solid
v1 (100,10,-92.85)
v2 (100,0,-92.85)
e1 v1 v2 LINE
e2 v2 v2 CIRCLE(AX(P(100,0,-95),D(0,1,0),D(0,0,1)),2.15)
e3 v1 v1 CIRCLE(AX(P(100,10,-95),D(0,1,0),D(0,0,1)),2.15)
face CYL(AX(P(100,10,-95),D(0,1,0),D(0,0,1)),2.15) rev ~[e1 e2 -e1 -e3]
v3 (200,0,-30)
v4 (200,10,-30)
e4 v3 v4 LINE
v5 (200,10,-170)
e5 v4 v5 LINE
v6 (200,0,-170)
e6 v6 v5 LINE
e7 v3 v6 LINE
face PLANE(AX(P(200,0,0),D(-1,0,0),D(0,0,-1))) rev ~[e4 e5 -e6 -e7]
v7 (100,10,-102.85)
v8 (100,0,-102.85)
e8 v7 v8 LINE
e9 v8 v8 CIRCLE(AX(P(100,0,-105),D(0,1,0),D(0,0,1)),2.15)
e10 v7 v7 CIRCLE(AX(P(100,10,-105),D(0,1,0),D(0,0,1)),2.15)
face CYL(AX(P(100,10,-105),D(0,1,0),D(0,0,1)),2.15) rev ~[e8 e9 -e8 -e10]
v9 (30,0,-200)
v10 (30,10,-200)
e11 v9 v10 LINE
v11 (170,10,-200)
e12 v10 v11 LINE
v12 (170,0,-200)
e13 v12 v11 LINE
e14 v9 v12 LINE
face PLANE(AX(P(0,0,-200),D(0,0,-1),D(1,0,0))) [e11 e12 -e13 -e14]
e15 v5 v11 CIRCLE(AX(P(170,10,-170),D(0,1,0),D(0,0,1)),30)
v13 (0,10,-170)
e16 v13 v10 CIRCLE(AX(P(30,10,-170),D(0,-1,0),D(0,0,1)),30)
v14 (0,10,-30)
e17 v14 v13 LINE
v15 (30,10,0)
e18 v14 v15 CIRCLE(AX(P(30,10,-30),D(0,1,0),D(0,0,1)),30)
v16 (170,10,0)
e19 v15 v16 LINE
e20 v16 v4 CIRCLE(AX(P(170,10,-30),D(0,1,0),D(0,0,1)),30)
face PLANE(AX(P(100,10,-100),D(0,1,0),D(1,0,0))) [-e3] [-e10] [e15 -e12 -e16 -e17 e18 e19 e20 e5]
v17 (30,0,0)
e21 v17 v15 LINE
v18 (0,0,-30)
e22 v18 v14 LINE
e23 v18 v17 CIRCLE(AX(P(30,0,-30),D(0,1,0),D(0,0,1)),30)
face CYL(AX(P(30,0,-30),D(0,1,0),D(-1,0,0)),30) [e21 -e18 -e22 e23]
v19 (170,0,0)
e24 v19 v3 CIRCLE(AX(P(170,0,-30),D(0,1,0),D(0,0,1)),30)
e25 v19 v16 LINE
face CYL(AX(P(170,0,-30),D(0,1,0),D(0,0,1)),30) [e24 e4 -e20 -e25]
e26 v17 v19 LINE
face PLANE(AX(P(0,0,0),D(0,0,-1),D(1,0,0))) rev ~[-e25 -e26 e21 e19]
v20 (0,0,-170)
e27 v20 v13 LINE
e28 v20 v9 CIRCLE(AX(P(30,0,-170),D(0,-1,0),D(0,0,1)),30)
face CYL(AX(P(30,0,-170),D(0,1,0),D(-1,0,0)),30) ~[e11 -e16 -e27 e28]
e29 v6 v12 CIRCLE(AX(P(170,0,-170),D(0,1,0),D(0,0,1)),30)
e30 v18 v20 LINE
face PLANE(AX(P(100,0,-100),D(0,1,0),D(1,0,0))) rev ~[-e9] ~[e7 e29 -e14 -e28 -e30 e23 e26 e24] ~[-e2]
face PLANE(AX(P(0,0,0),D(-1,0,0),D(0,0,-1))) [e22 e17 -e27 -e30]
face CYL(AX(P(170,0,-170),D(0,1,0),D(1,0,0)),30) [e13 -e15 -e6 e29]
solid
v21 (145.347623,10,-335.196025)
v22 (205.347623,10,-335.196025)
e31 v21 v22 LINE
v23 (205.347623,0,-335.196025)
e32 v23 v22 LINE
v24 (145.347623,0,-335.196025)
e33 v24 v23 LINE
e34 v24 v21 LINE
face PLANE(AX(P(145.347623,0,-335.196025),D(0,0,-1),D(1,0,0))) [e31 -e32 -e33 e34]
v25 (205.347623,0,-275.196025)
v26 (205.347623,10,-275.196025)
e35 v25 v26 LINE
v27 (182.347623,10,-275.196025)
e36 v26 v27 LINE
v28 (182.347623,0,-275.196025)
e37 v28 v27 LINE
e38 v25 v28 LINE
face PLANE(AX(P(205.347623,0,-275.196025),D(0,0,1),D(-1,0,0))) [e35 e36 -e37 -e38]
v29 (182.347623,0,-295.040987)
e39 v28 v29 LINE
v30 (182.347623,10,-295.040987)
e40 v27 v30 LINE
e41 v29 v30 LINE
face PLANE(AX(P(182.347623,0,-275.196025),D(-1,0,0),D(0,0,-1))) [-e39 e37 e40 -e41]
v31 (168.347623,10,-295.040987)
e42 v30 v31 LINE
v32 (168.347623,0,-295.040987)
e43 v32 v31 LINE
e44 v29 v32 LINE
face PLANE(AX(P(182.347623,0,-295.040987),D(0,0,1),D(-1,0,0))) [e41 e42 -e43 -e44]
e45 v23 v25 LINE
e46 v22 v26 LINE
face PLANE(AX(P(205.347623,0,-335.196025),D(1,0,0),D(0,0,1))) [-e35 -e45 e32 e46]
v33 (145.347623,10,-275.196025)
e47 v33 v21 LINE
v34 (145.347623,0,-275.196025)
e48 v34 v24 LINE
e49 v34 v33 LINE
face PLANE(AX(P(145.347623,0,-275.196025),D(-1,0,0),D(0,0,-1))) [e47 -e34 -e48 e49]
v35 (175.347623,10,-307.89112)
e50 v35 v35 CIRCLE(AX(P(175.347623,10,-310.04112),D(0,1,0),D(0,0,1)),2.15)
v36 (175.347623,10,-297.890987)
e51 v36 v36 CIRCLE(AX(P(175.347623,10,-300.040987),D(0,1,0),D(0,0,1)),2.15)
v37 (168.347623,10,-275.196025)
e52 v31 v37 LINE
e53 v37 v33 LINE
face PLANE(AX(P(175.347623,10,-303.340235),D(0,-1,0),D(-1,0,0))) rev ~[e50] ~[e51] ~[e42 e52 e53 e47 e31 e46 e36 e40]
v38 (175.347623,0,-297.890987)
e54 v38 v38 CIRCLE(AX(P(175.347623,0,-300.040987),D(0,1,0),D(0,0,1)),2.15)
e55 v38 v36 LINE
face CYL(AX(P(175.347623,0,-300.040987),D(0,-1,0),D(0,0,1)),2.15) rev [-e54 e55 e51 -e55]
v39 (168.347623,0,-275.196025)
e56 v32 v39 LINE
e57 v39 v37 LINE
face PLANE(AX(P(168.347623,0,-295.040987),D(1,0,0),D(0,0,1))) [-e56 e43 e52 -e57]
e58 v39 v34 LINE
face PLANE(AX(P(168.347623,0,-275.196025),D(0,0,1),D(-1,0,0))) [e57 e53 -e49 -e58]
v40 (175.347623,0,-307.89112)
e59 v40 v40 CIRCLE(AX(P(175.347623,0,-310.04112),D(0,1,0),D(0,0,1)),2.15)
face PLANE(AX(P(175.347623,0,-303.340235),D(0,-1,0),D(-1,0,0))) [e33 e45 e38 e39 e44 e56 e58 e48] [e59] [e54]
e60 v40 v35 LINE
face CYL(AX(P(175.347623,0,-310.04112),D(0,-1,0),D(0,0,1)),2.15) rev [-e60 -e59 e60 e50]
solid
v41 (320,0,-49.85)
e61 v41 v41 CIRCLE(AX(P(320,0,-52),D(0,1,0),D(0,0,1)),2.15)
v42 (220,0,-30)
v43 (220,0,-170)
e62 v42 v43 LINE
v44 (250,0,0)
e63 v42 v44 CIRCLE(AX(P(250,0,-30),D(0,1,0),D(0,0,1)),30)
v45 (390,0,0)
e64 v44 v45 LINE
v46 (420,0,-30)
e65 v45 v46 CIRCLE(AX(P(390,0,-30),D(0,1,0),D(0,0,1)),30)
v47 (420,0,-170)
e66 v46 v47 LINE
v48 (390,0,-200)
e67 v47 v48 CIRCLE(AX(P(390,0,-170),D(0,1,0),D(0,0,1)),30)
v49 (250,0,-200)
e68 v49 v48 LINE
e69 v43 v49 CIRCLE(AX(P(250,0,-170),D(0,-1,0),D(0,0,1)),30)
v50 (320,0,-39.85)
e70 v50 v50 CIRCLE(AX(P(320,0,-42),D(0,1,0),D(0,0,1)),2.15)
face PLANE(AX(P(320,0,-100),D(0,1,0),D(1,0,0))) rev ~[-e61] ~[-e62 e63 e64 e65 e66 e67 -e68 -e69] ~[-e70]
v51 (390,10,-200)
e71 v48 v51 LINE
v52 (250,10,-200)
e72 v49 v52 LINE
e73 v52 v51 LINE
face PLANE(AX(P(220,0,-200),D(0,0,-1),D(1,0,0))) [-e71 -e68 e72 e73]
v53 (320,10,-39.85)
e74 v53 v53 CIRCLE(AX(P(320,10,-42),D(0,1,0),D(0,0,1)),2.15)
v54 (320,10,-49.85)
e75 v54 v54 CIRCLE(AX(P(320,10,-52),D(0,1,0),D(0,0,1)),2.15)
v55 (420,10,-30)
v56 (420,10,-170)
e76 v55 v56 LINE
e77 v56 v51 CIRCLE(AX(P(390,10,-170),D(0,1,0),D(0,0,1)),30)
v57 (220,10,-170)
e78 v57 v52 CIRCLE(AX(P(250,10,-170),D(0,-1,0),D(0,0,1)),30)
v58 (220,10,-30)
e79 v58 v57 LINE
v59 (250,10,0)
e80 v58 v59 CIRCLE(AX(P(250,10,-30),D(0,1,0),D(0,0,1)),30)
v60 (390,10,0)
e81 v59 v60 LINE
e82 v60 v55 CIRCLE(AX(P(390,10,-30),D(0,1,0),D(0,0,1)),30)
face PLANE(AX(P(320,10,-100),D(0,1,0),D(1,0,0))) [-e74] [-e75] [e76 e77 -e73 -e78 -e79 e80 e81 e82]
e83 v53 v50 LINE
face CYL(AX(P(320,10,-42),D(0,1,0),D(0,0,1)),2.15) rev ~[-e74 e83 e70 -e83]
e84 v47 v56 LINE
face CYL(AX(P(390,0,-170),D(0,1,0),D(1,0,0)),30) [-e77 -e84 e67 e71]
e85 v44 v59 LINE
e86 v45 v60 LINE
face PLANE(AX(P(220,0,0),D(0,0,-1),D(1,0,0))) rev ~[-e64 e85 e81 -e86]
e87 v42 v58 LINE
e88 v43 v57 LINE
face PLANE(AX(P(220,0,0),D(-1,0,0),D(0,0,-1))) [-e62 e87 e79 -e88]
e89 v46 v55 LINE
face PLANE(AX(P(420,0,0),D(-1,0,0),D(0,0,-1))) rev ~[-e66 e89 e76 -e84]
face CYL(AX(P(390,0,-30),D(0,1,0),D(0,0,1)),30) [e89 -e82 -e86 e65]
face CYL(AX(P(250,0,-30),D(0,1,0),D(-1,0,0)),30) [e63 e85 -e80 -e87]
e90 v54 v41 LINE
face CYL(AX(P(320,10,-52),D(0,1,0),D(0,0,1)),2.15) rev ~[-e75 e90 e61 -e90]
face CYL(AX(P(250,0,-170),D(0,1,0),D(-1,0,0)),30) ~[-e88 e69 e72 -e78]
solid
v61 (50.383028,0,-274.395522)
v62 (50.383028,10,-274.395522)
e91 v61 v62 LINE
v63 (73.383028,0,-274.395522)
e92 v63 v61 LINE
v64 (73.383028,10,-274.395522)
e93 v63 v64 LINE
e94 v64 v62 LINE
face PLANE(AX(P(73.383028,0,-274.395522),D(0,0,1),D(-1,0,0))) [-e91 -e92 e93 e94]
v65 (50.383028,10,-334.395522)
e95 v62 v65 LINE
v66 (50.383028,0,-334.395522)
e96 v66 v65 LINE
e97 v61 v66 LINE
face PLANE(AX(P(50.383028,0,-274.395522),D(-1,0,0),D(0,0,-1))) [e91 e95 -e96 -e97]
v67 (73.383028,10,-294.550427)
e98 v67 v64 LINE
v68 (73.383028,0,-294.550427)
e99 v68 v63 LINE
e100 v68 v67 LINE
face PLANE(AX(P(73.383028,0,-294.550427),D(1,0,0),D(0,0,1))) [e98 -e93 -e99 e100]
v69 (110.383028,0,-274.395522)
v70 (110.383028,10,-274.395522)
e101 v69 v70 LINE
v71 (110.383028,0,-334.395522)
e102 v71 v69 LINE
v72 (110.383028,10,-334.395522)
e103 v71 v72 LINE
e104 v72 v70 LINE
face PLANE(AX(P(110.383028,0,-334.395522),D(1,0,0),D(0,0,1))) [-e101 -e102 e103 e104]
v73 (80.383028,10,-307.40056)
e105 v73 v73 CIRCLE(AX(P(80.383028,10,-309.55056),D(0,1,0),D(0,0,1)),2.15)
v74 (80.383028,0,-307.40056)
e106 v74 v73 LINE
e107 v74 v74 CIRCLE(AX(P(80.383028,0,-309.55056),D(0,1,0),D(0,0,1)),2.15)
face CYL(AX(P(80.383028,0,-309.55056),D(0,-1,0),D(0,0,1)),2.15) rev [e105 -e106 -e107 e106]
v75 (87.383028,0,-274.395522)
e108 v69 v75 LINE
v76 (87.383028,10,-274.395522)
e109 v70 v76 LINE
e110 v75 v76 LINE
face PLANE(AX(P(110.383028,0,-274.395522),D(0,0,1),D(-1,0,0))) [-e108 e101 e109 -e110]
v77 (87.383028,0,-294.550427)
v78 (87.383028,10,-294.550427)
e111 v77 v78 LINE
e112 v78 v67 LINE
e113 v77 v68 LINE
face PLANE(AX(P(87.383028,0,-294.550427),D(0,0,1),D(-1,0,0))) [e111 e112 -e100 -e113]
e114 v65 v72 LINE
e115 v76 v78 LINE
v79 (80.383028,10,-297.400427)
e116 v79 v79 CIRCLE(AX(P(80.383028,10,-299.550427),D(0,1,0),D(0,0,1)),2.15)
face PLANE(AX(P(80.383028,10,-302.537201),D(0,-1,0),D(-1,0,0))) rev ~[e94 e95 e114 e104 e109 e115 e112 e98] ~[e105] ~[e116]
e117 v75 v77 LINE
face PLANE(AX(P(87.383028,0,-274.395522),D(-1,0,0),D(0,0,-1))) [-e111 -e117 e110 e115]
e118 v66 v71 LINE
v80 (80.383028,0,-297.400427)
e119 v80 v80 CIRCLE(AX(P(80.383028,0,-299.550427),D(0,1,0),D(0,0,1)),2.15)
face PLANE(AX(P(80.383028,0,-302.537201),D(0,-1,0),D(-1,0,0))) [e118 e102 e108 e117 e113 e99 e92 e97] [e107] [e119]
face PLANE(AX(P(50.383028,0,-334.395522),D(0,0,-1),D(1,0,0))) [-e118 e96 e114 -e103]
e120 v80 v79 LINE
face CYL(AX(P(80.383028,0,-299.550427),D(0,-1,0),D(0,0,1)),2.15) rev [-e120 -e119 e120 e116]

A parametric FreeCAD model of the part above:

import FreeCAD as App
import Part
import Sketcher
Q = App.Units.Quantity


def edges_at(feature, points):
    """Names of the edges that pass closest to the given points."""
    edges = feature.Shape.Edges
    near = lambda p: min(range(len(edges)), key=lambda i: edges[i].distToShape(Part.Vertex(*p))[0])
    return sorted({f"Edge{near(p) + 1}" for p in points})

doc = App.newDocument("Part")
body = doc.addObject("PartDesign::Body", "Body")

# Sketch on XZ plane
sketch1 = body.newObject("Sketcher::SketchObject", "Sketch")
sketch1.AttachmentSupport = (doc.getObject("XZ_Plane"), [""])
sketch1.MapMode = "FlatFace"
sketch1.addGeometry([
    Part.LineSegment(App.Vector(0, -200, 0), App.Vector(0, 0, 0)),
    Part.LineSegment(App.Vector(0, 0, 0), App.Vector(200, 0, 0)),
    Part.LineSegment(App.Vector(200, 0, 0), App.Vector(200, -200, 0)),
    Part.LineSegment(App.Vector(200, -200, 0), App.Vector(0, -200, 0)),
], False)
sketch1.addConstraint([
    Sketcher.Constraint("Coincident", 0, 2, 1, 1),
    Sketcher.Constraint("Coincident", 1, 2, 2, 1),
    Sketcher.Constraint("Coincident", 2, 2, 3, 1),
    Sketcher.Constraint("Coincident", 3, 2, 0, 1),
    Sketcher.Constraint("Vertical", 0),
    Sketcher.Constraint("Horizontal", 1),
    Sketcher.Constraint("Vertical", 2),
    Sketcher.Constraint("Horizontal", 3),
    Sketcher.Constraint("Coincident", 0, 2, -1, 1),
    Sketcher.Constraint("Equal", 3, 0),
    Sketcher.Constraint("DistanceX", 1, 1, 1, 2, Q("200 mm")),
])
pad1 = body.newObject("PartDesign::Pad", "Pad")
pad1.Profile = sketch1
pad1.Length = 10
pad1.Reversed = True
doc.recompute()

fillet = body.newObject("PartDesign::Fillet", "Fillet")
fillet.Base = (pad1, edges_at(pad1, [
    (0, 5, -200),
    (200, 5, -200),
    (200, 5, 0),
    (0, 5, 0),
]))
fillet.Radius = 30

# Sketch on XZ plane
sketch2 = body.newObject("Sketcher::SketchObject", "Sketch001")
sketch2.AttachmentSupport = (doc.getObject("XZ_Plane"), [""])
sketch2.MapMode = "FlatFace"
sketch2.AttachmentOffset = App.Placement(App.Vector(0, 0, -10), App.Rotation())
sketch2.addGeometry([
    Part.Circle(App.Vector(100, -105, 0), App.Vector(0, 0, 1), 2.15),
    Part.Circle(App.Vector(100, -95, 0), App.Vector(0, 0, 1), 2.15),
], False)
sketch2.addConstraint([
    Sketcher.Constraint("Equal", 0, 1),
    Sketcher.Constraint("Vertical", 0, 3, 1, 3),
    Sketcher.Constraint("Diameter", 0, Q("4.3 mm")),
    Sketcher.Constraint("DistanceX", -1, 1, 0, 3, Q("100 mm")),
    Sketcher.Constraint("DistanceY", 0, 3, -1, 1, Q("105 mm")),
    Sketcher.Constraint("DistanceY", 1, 3, -1, 1, Q("95 mm")),
])
pocket1 = body.newObject("PartDesign::Pocket", "Pocket")
pocket1.Profile = sketch2
pocket1.Length = 15
pocket1.Reversed = True
body2 = doc.addObject("PartDesign::Body", "Body001")

# Sketch on XZ plane
sketch3 = body2.newObject("Sketcher::SketchObject", "Sketch002")
sketch3.AttachmentSupport = (doc.getObject("XZ_Plane001"), [""])
sketch3.MapMode = "FlatFace"
sketch3.addGeometry([
    Part.LineSegment(App.Vector(220, -200, 0), App.Vector(220, 0, 0)),
    Part.LineSegment(App.Vector(220, 0, 0), App.Vector(420, 0, 0)),
    Part.LineSegment(App.Vector(420, 0, 0), App.Vector(420, -200, 0)),
    Part.LineSegment(App.Vector(420, -200, 0), App.Vector(220, -200, 0)),
], False)
sketch3.addConstraint([
    Sketcher.Constraint("Coincident", 0, 2, 1, 1),
    Sketcher.Constraint("Coincident", 1, 2, 2, 1),
    Sketcher.Constraint("Coincident", 2, 2, 3, 1),
    Sketcher.Constraint("Coincident", 3, 2, 0, 1),
    Sketcher.Constraint("Vertical", 0),
    Sketcher.Constraint("Horizontal", 1),
    Sketcher.Constraint("Vertical", 2),
    Sketcher.Constraint("Horizontal", 3),
    Sketcher.Constraint("PointOnObject", 0, 2, -1),
    Sketcher.Constraint("Equal", 3, 0),
    Sketcher.Constraint("DistanceX", 1, 1, 1, 2, Q("200 mm")),
    Sketcher.Constraint("DistanceX", -1, 1, 0, 2, Q("220 mm")),
])
pad2 = body2.newObject("PartDesign::Pad", "Pad001")
pad2.Profile = sketch3
pad2.Length = 10
pad2.Reversed = True
doc.recompute()

fillet2 = body2.newObject("PartDesign::Fillet", "Fillet001")
fillet2.Base = (pad2, edges_at(pad2, [
    (220, 5, -200),
    (420, 5, -200),
    (420, 5, 0),
    (220, 5, 0),
]))
fillet2.Radius = 30

# Sketch on XZ plane
sketch4 = body2.newObject("Sketcher::SketchObject", "Sketch003")
sketch4.AttachmentSupport = (doc.getObject("XZ_Plane001"), [""])
sketch4.MapMode = "FlatFace"
sketch4.AttachmentOffset = App.Placement(App.Vector(0, 0, -10), App.Rotation())
sketch4.addGeometry([
    Part.Circle(App.Vector(320, -52, 0), App.Vector(0, 0, 1), 2.15),
    Part.Circle(App.Vector(320, -42, 0), App.Vector(0, 0, 1), 2.15),
], False)
sketch4.addConstraint([
    Sketcher.Constraint("Equal", 0, 1),
    Sketcher.Constraint("Vertical", 0, 3, 1, 3),
    Sketcher.Constraint("Diameter", 0, Q("4.3 mm")),
    Sketcher.Constraint("DistanceX", -1, 1, 0, 3, Q("320 mm")),
    Sketcher.Constraint("DistanceY", 0, 3, -1, 1, Q("52 mm")),
    Sketcher.Constraint("DistanceY", 1, 3, -1, 1, Q("42 mm")),
])
pocket2 = body2.newObject("PartDesign::Pocket", "Pocket001")
pocket2.Profile = sketch4
pocket2.Length = 15
pocket2.Reversed = True
body3 = doc.addObject("PartDesign::Body", "Body002")

# Sketch on XZ plane
sketch5 = body3.newObject("Sketcher::SketchObject", "Sketch004")
sketch5.AttachmentSupport = (doc.getObject("XZ_Plane002"), [""])
sketch5.MapMode = "FlatFace"
sketch5.addGeometry([
    Part.LineSegment(App.Vector(110.383028, -334.395522, 0), App.Vector(50.383028, -334.395522, 0)),  # 0
    Part.LineSegment(App.Vector(50.383028, -334.395522, 0), App.Vector(50.383028, -274.395522, 0)),  # 1
    Part.LineSegment(App.Vector(50.383028, -274.395522, 0), App.Vector(73.383028, -274.395522, 0)),  # 2
    Part.LineSegment(App.Vector(73.383028, -274.395522, 0), App.Vector(73.383028, -294.550427, 0)),  # 3
    Part.LineSegment(App.Vector(73.383028, -294.550427, 0), App.Vector(87.383028, -294.550427, 0)),  # 4
    Part.LineSegment(App.Vector(87.383028, -294.550427, 0), App.Vector(87.383028, -274.395522, 0)),  # 5
    Part.LineSegment(App.Vector(87.383028, -274.395522, 0), App.Vector(110.383028, -274.395522, 0)),  # 6
    Part.LineSegment(App.Vector(110.383028, -274.395522, 0), App.Vector(110.383028, -334.395522, 0)),  # 7
    Part.Circle(App.Vector(80.383028, -299.550427, 0), App.Vector(0, 0, 1), 2.15),  # 8
    Part.Circle(App.Vector(80.383028, -309.55056, 0), App.Vector(0, 0, 1), 2.15),  # 9
], False)
sketch5.addConstraint([
    Sketcher.Constraint("Coincident", 0, 2, 1, 1),
    Sketcher.Constraint("Coincident", 1, 2, 2, 1),
    Sketcher.Constraint("Coincident", 2, 2, 3, 1),
    Sketcher.Constraint("Coincident", 3, 2, 4, 1),
    Sketcher.Constraint("Coincident", 4, 2, 5, 1),
    Sketcher.Constraint("Coincident", 5, 2, 6, 1),
    Sketcher.Constraint("Coincident", 6, 2, 7, 1),
    Sketcher.Constraint("Coincident", 7, 2, 0, 1),
    Sketcher.Constraint("Horizontal", 0),
    Sketcher.Constraint("Vertical", 1),
    Sketcher.Constraint("Horizontal", 2),
    Sketcher.Constraint("Vertical", 3),
    Sketcher.Constraint("Horizontal", 4),
    Sketcher.Constraint("Vertical", 5),
    Sketcher.Constraint("Horizontal", 6),
    Sketcher.Constraint("Vertical", 7),
    Sketcher.Constraint("Equal", 8, 9),
    Sketcher.Constraint("Horizontal", 2, 2, 5, 2),
    Sketcher.Constraint("Vertical", 8, 3, 9, 3),
    Sketcher.Constraint("Equal", 2, 6),
    Sketcher.Constraint("Equal", 0, 1),
    Sketcher.Constraint("Diameter", 8, Q("4.3 mm")),
    Sketcher.Constraint("DistanceX", 0, 2, 0, 1, Q("60 mm")),
    Sketcher.Constraint("DistanceX", 2, 1, 2, 2, Q("23 mm")),
    Sketcher.Constraint("DistanceX", 0, 2, 9, 3, Q("30 mm")),
    Sketcher.Constraint("DistanceY", 8, 3, 3, 2, Q("5 mm")),
    Sketcher.Constraint("DistanceY", 3, 2, 3, 1, Q("20.154905 mm")),
    Sketcher.Constraint("DistanceY", 9, 3, -1, 1, Q("309.55056 mm")),
    Sketcher.Constraint("DistanceY", 0, 2, -1, 1, Q("334.395522 mm")),
    Sketcher.Constraint("DistanceX", -1, 1, 8, 3, Q("80.383028 mm")),
])
pad3 = body3.newObject("PartDesign::Pad", "Pad002")
pad3.Profile = sketch5
pad3.Length = 10
pad3.Reversed = True
body4 = doc.addObject("PartDesign::Body", "Body003")

# Sketch on XZ plane
sketch6 = body4.newObject("Sketcher::SketchObject", "Sketch005")
sketch6.AttachmentSupport = (doc.getObject("XZ_Plane003"), [""])
sketch6.MapMode = "FlatFace"
sketch6.addGeometry([
    Part.LineSegment(App.Vector(205.347623, -335.196025, 0), App.Vector(145.347623, -335.196025, 0)),  # 0
    Part.LineSegment(App.Vector(145.347623, -335.196025, 0), App.Vector(145.347623, -275.196025, 0)),  # 1
    Part.LineSegment(App.Vector(145.347623, -275.196025, 0), App.Vector(168.347623, -275.196025, 0)),  # 2
    Part.LineSegment(App.Vector(168.347623, -275.196025, 0), App.Vector(168.347623, -295.040987, 0)),  # 3
    Part.LineSegment(App.Vector(168.347623, -295.040987, 0), App.Vector(182.347623, -295.040987, 0)),  # 4
    Part.LineSegment(App.Vector(182.347623, -295.040987, 0), App.Vector(182.347623, -275.196025, 0)),  # 5
    Part.LineSegment(App.Vector(182.347623, -275.196025, 0), App.Vector(205.347623, -275.196025, 0)),  # 6
    Part.LineSegment(App.Vector(205.347623, -275.196025, 0), App.Vector(205.347623, -335.196025, 0)),  # 7
    Part.Circle(App.Vector(175.347623, -300.040987, 0), App.Vector(0, 0, 1), 2.15),  # 8
    Part.Circle(App.Vector(175.347623, -310.04112, 0), App.Vector(0, 0, 1), 2.15),  # 9
], False)
sketch6.addConstraint([
    Sketcher.Constraint("Coincident", 0, 2, 1, 1),
    Sketcher.Constraint("Coincident", 1, 2, 2, 1),
    Sketcher.Constraint("Coincident", 2, 2, 3, 1),
    Sketcher.Constraint("Coincident", 3, 2, 4, 1),
    Sketcher.Constraint("Coincident", 4, 2, 5, 1),
    Sketcher.Constraint("Coincident", 5, 2, 6, 1),
    Sketcher.Constraint("Coincident", 6, 2, 7, 1),
    Sketcher.Constraint("Coincident", 7, 2, 0, 1),
    Sketcher.Constraint("Horizontal", 0),
    Sketcher.Constraint("Vertical", 1),
    Sketcher.Constraint("Horizontal", 2),
    Sketcher.Constraint("Vertical", 3),
    Sketcher.Constraint("Horizontal", 4),
    Sketcher.Constraint("Vertical", 5),
    Sketcher.Constraint("Horizontal", 6),
    Sketcher.Constraint("Vertical", 7),
    Sketcher.Constraint("Equal", 8, 9),
    Sketcher.Constraint("Horizontal", 2, 2, 5, 2),
    Sketcher.Constraint("Vertical", 8, 3, 9, 3),
    Sketcher.Constraint("Equal", 2, 6),
    Sketcher.Constraint("Equal", 0, 1),
    Sketcher.Constraint("Diameter", 8, Q("4.3 mm")),
    Sketcher.Constraint("DistanceX", 0, 2, 0, 1, Q("60 mm")),
    Sketcher.Constraint("DistanceX", 2, 1, 2, 2, Q("23 mm")),
    Sketcher.Constraint("DistanceX", 0, 2, 9, 3, Q("30 mm")),
    Sketcher.Constraint("DistanceY", 8, 3, 3, 2, Q("5 mm")),
    Sketcher.Constraint("DistanceY", 3, 2, 3, 1, Q("19.844962 mm")),
    Sketcher.Constraint("DistanceY", 9, 3, -1, 1, Q("310.04112 mm")),
    Sketcher.Constraint("DistanceX", -1, 1, 8, 3, Q("175.347623 mm")),
    Sketcher.Constraint("DistanceY", 8, 3, -1, 1, Q("300.040987 mm")),
])
pad4 = body4.newObject("PartDesign::Pad", "Pad003")
pad4.Profile = sketch6
pad4.Length = 10
pad4.Reversed = True

doc.recompute()
